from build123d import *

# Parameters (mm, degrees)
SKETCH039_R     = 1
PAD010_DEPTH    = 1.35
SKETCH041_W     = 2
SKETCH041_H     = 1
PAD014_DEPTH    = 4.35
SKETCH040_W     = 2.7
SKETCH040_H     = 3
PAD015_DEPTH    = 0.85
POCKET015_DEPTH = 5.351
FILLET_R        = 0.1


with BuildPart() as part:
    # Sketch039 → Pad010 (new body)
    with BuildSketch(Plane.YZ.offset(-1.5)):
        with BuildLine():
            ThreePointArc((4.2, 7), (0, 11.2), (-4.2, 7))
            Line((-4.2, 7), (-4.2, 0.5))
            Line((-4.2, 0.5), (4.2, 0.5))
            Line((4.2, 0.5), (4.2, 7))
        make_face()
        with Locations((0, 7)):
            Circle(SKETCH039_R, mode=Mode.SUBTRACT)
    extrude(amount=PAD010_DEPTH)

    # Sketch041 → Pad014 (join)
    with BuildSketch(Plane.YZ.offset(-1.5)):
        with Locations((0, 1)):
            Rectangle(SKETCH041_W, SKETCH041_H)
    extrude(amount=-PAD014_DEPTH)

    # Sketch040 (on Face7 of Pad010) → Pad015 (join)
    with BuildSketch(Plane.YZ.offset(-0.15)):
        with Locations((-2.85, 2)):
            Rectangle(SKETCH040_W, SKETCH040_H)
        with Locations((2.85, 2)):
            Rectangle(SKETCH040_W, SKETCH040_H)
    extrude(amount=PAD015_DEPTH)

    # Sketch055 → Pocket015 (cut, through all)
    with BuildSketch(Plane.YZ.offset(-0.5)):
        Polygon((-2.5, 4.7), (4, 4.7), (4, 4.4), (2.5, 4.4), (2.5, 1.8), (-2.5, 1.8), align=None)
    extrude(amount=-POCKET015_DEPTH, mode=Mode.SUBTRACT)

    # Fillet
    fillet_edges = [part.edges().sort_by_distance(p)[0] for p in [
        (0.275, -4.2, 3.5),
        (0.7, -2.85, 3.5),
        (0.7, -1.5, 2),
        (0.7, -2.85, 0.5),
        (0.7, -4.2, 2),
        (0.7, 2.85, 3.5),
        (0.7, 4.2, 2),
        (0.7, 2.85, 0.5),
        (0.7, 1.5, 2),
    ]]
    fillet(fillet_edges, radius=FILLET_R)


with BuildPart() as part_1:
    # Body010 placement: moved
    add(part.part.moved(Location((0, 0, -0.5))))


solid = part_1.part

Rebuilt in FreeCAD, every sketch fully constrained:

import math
import FreeCAD as App
import Part
import Sketcher


def edges_at(feature, points):
    """Names of the edges that pass closest to the given points."""
    edges = feature.Shape.Edges
    near = lambda p: min(range(len(edges)), key=lambda i: edges[i].distToShape(Part.Vertex(*p))[0])
    return sorted({f"Edge{near(p) + 1}" for p in points})


def add_polygon(sketch, points):
    """Adds a closed chain of lines whose ends are joined by coincident constraints."""
    first, n = sketch.GeometryCount, len(points)
    for a, b in zip(points, points[1:] + points[:1]):
        sketch.addGeometry(Part.LineSegment(App.Vector(*a, 0), App.Vector(*b, 0)), False)
    for i in range(n):
        sketch.addConstraint(Sketcher.Constraint("Coincident", first + i, 2, first + (i + 1) % n, 1))

doc = App.newDocument("Part")
body = doc.addObject("PartDesign::Body", "Body")

sketch1 = doc.addObject("Sketcher::SketchObject", "Sketch")
body.addObject(sketch1)
sketch1.AttachmentSupport = (doc.YZ_Plane, [""])
sketch1.MapMode = "FlatFace"
sketch1.AttachmentOffset = App.Placement(App.Vector(0, 0, -1.5), App.Rotation())
sketch1.addGeometry(Part.ArcOfCircle(Part.Circle(App.Vector(0, 7, 0), App.Vector(0, 0, 1), 4.2), math.radians(0), math.radians(180)), False)
sketch1.addGeometry(Part.LineSegment(App.Vector(-4.2, 7, 0), App.Vector(-4.2, 0.5, 0)), False)
sketch1.addGeometry(Part.LineSegment(App.Vector(-4.2, 0.5, 0), App.Vector(4.2, 0.5, 0)), False)
sketch1.addGeometry(Part.LineSegment(App.Vector(4.2, 0.5, 0), App.Vector(4.2, 7, 0)), False)
sketch1.addGeometry(Part.Circle(App.Vector(0, 7, 0), App.Vector(0, 0, 1), 1), False)
sketch1.addConstraint(Sketcher.Constraint("Tangent", 0, 2, 1, 1))
sketch1.addConstraint(Sketcher.Constraint("Coincident", 1, 2, 2, 1))
sketch1.addConstraint(Sketcher.Constraint("Coincident", 2, 2, 3, 1))
sketch1.addConstraint(Sketcher.Constraint("Tangent", 3, 2, 0, 1))
sketch1.addConstraint(Sketcher.Constraint("Vertical", 1))
sketch1.addConstraint(Sketcher.Constraint("Horizontal", 2))
sketch1.addConstraint(Sketcher.Constraint("Vertical", 3))
sketch1.addConstraint(Sketcher.Constraint("Coincident", 4, 3, 0, 3))
sketch1.addConstraint(Sketcher.Constraint("PointOnObject", 0, 3, -2))
sketch1.addConstraint(Sketcher.Constraint("Diameter", 4, 2.0))
sketch1.addConstraint(Sketcher.Constraint("Radius", 0, 4.2))
sketch1.addConstraint(Sketcher.Constraint("DistanceY", 1, 2, 1, 1, 6.5))
sketch1.addConstraint(Sketcher.Constraint("DistanceY", -1, 1, 0, 3, 7.0))
pad1 = doc.addObject("PartDesign::Pad", "Pad")
body.addObject(pad1)
pad1.Profile = sketch1
pad1.Length = 1.35

sketch2 = doc.addObject("Sketcher::SketchObject", "Sketch001")
body.addObject(sketch2)
sketch2.AttachmentSupport = (doc.YZ_Plane, [""])
sketch2.MapMode = "FlatFace"
sketch2.AttachmentOffset = App.Placement(App.Vector(0, 0, -1.5), App.Rotation())
add_polygon(sketch2, [(-1, 1.5), (-1, 0.5), (1, 0.5), (1, 1.5)])
sketch2.addConstraint(Sketcher.Constraint("Vertical", 0))
sketch2.addConstraint(Sketcher.Constraint("Horizontal", 1))
sketch2.addConstraint(Sketcher.Constraint("Vertical", 2))
sketch2.addConstraint(Sketcher.Constraint("Horizontal", 3))
sketch2.addConstraint(Sketcher.Constraint("DistanceX", 1, 1, 1, 2, 2.0))
sketch2.addConstraint(Sketcher.Constraint("DistanceY", 0, 2, 0, 1, 1.0))
sketch2.addConstraint(Sketcher.Constraint("DistanceX", 0, 2, -1, 1, 1.0))
sketch2.addConstraint(Sketcher.Constraint("DistanceY", -1, 1, 0, 2, 0.5))
pad2 = doc.addObject("PartDesign::Pad", "Pad001")
body.addObject(pad2)
pad2.Profile = sketch2
pad2.Length = 4.35
pad2.Reversed = True

sketch3 = doc.addObject("Sketcher::SketchObject", "Sketch002")
body.addObject(sketch3)
sketch3.AttachmentSupport = (doc.YZ_Plane, [""])
sketch3.MapMode = "FlatFace"
sketch3.AttachmentOffset = App.Placement(App.Vector(0, 0, -0.15), App.Rotation())
add_polygon(sketch3, [(-4.2, 3.5), (-4.2, 0.5), (-1.5, 0.5), (-1.5, 3.5)])
add_polygon(sketch3, [(1.5, 3.5), (1.5, 0.5), (4.2, 0.5), (4.2, 3.5)])
sketch3.addConstraint(Sketcher.Constraint("Vertical", 0))
sketch3.addConstraint(Sketcher.Constraint("Horizontal", 1))
sketch3.addConstraint(Sketcher.Constraint("Vertical", 2))
sketch3.addConstraint(Sketcher.Constraint("Horizontal", 3))
sketch3.addConstraint(Sketcher.Constraint("Vertical", 4))
sketch3.addConstraint(Sketcher.Constraint("Horizontal", 5))
sketch3.addConstraint(Sketcher.Constraint("Vertical", 6))
sketch3.addConstraint(Sketcher.Constraint("Horizontal", 7))
sketch3.addConstraint(Sketcher.Constraint("Symmetric", 1, 2, 4, 2, -2))
sketch3.addConstraint(Sketcher.Constraint("Symmetric", 3, 2, 6, 2, -2))
sketch3.addConstraint(Sketcher.Constraint("DistanceY", 0, 2, 0, 1, 3.0))
sketch3.addConstraint(Sketcher.Constraint("DistanceX", 1, 1, 1, 2, 2.7))
sketch3.addConstraint(Sketcher.Constraint("DistanceX", 1, 2, 4, 2, 3.0))
sketch3.addConstraint(Sketcher.Constraint("DistanceY", -1, 1, 0, 2, 0.5))
pad3 = doc.addObject("PartDesign::Pad", "Pad002")
body.addObject(pad3)
pad3.Profile = sketch3
pad3.Length = 0.85

sketch4 = doc.addObject("Sketcher::SketchObject", "Sketch003")
body.addObject(sketch4)
sketch4.AttachmentSupport = (doc.YZ_Plane, [""])
sketch4.MapMode = "FlatFace"
sketch4.AttachmentOffset = App.Placement(App.Vector(0, 0, -0.5), App.Rotation())
add_polygon(sketch4, [(4, 4.7), (-2.5, 4.7), (-2.5, 1.8), (2.5, 1.8), (2.5, 4.4), (4, 4.4)])
sketch4.addConstraint(Sketcher.Constraint("Horizontal", 0))
sketch4.addConstraint(Sketcher.Constraint("Vertical", 1))
sketch4.addConstraint(Sketcher.Constraint("Horizontal", 2))
sketch4.addConstraint(Sketcher.Constraint("Vertical", 3))
sketch4.addConstraint(Sketcher.Constraint("Horizontal", 4))
sketch4.addConstraint(Sketcher.Constraint("Vertical", 5))
sketch4.addConstraint(Sketcher.Constraint("DistanceX", 2, 1, 2, 2, 5.0))
sketch4.addConstraint(Sketcher.Constraint("DistanceX", 0, 2, 0, 1, 6.5))
sketch4.addConstraint(Sketcher.Constraint("DistanceY", 1, 2, 1, 1, 2.9))
sketch4.addConstraint(Sketcher.Constraint("DistanceY", 3, 1, 3, 2, 2.6))
sketch4.addConstraint(Sketcher.Constraint("DistanceX", -1, 1, 4, 2, 4.0))
sketch4.addConstraint(Sketcher.Constraint("DistanceY", -1, 1, 0, 2, 4.7))
pocket1 = doc.addObject("PartDesign::Pocket", "Pocket")
body.addObject(pocket1)
pocket1.Profile = sketch4
pocket1.Type = "ThroughAll"
doc.recompute()

fillet = doc.addObject("PartDesign::Fillet", "Fillet")
body.addObject(fillet)
fillet.Base = (pocket1, edges_at(pocket1, [
    (0.275, -4.2, 3.5),
    (0.7, -2.85, 3.5),
    (0.7, -1.5, 2),
    (0.7, -2.85, 0.5),
    (0.7, -4.2, 2),
    (0.7, 2.85, 3.5),
    (0.7, 4.2, 2),
    (0.7, 2.85, 0.5),
    (0.7, 1.5, 2),
]))
fillet.Radius = 0.1
body2 = doc.addObject("PartDesign::Body", "Body001")
doc.recompute()

body.Placement = App.Placement(App.Vector(0, 0, -0.5), App.Rotation(App.Vector(0, 0, 1), 0))
boolean = doc.addObject("PartDesign::Boolean", "Boolean")
body2.addObject(boolean)
boolean.Type = "Fuse"
boolean.addObjects([body])

doc.recompute()
